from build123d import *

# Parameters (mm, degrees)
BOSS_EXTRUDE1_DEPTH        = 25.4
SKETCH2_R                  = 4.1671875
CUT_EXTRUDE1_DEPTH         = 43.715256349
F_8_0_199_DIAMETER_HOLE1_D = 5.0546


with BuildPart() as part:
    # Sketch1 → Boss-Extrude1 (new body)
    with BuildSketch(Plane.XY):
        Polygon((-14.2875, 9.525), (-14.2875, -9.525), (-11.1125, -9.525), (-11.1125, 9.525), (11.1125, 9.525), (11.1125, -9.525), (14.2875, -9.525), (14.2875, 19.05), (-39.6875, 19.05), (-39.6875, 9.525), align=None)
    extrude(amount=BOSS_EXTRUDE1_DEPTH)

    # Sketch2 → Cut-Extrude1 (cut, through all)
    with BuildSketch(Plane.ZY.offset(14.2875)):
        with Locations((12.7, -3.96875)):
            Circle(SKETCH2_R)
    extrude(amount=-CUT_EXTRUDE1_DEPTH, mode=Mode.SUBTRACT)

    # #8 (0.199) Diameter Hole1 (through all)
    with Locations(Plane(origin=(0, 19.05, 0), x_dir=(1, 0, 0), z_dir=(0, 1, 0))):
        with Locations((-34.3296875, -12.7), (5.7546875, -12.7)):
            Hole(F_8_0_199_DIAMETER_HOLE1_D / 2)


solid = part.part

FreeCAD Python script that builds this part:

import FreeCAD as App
import Part
import Sketcher
Q = App.Units.Quantity


def add_polygon(sketch, points):
    """Adds a closed chain of lines whose ends are joined by coincident constraints."""
    first, n = sketch.GeometryCount, len(points)
    for a, b in zip(points, points[1:] + points[:1]):
        sketch.addGeometry(Part.LineSegment(App.Vector(*a, 0), App.Vector(*b, 0)), False)
    for i in range(n):
        sketch.addConstraint(Sketcher.Constraint("Coincident", first + i, 2, first + (i + 1) % n, 1))

doc = App.newDocument("Part")
body = doc.addObject("PartDesign::Body", "Body")

sketch1 = body.newObject("Sketcher::SketchObject", "Sketch")
sketch1.AttachmentSupport = (doc.getObject("XY_Plane"), [""])
sketch1.MapMode = "FlatFace"
add_polygon(sketch1, [(-14.2875, 9.525), (-14.2875, -9.525), (-11.1125, -9.525), (-11.1125, 9.525), (11.1125, 9.525), (11.1125, -9.525), (14.2875, -9.525), (14.2875, 19.05), (-39.6875, 19.05), (-39.6875, 9.525)])
sketch1.addConstraint([
    Sketcher.Constraint("Vertical", 0),
    Sketcher.Constraint("Horizontal", 1),
    Sketcher.Constraint("Vertical", 2),
    Sketcher.Constraint("Horizontal", 3),
    Sketcher.Constraint("Vertical", 4),
    Sketcher.Constraint("Horizontal", 5),
    Sketcher.Constraint("Vertical", 6),
    Sketcher.Constraint("Horizontal", 7),
    Sketcher.Constraint("Vertical", 8),
    Sketcher.Constraint("Horizontal", 9),
    Sketcher.Constraint("Symmetric", 1, 2, 3, 2, -1, 1),
    Sketcher.Constraint("Symmetric", 5, 2, 9, 2, -1, 1),
    Sketcher.Constraint("Horizontal", 1, 2, 4, 2),
    Sketcher.Constraint("DistanceX", 9, 1, 9, 2, Q("1 in")),
    Sketcher.Constraint("DistanceX", 0, 2, 3, 2, Q("1 in")),
    Sketcher.Constraint("DistanceY", 0, 2, 0, 1, Q("0.75 in")),
    Sketcher.Constraint("DistanceX", 1, 1, 1, 2, Q("0.125 in")),
    Sketcher.Constraint("DistanceY", 6, 1, 6, 2, Q("1.125 in")),
])
pad1 = body.newObject("PartDesign::Pad", "Pad")
pad1.Profile = sketch1
pad1.Length = Q("1 in")

sketch2 = body.newObject("Sketcher::SketchObject", "Sketch001")
sketch2.AttachmentSupport = (doc.getObject("YZ_Plane"), [""])
sketch2.MapMode = "FlatFace"
sketch2.AttachmentOffset = App.Placement(App.Vector(0, 0, -0.5625 * 25.4), App.Rotation())
sketch2.addGeometry(Part.Circle(App.Vector(-3.96875, 12.7, 0), App.Vector(0, 0, 1), 4.167187), False)
sketch2.addConstraint([
    Sketcher.Constraint("Diameter", 0, Q("0.328125 in")),
    Sketcher.Constraint("DistanceY", -1, 1, 0, 3, Q("0.5 in")),
    Sketcher.Constraint("DistanceX", 0, 3, -1, 1, Q("0.15625 in")),
])
pocket1 = body.newObject("PartDesign::Pocket", "Pocket")
pocket1.Profile = sketch2
pocket1.Type = "ThroughAll"
pocket1.Reversed = True

sketch3 = body.newObject("Sketcher::SketchObject", "Sketch002")
sketch3.AttachmentSupport = (doc.getObject("XZ_Plane"), [""])
sketch3.MapMode = "FlatFace"
sketch3.AttachmentOffset = App.Placement(App.Vector(0, 0, -0.75 * 25.4), App.Rotation())
sketch3.addGeometry([
    Part.Circle(App.Vector(-34.329687, 12.7, 0), App.Vector(0, 0, 1), 2.5273),
    Part.Circle(App.Vector(5.754688, 12.7, 0), App.Vector(0, 0, 1), 2.5273),
], False)
sketch3.addConstraint([
    Sketcher.Constraint("Equal", 0, 1),
    Sketcher.Constraint("Horizontal", 0, 3, 1, 3),
    Sketcher.Constraint("Diameter", 0, Q("0.199 in")),
    Sketcher.Constraint("DistanceY", -1, 1, 0, 3, Q("0.5 in")),
    Sketcher.Constraint("DistanceX", 0, 3, 1, 3, Q("1.578125 in")),
    Sketcher.Constraint("DistanceX", 0, 3, -1, 1, Q("34.329687 mm")),
])
doc.recompute()
hole = body.newObject("PartDesign::Hole", "Hole")
hole.Profile = sketch3
hole.ThreadType = "None"
hole.Diameter = Q("0.199 in")
hole.DepthType = "ThroughAll"
hole.Reversed = True

doc.recompute()
